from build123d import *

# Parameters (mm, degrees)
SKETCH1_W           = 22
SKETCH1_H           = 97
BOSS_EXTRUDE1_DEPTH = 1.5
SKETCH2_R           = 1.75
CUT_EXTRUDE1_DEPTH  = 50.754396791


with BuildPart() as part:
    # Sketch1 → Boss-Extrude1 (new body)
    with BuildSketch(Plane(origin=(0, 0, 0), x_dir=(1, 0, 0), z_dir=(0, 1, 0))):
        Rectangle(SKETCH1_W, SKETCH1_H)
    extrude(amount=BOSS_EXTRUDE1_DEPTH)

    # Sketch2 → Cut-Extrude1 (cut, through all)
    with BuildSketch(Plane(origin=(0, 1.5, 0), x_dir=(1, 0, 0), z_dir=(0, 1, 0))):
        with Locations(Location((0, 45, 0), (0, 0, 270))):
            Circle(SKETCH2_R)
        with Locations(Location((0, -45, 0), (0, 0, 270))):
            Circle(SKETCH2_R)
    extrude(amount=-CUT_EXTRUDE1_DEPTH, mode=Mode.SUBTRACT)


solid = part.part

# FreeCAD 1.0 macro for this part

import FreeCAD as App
import Part
import Sketcher
from FreeCAD import Vector

doc = App.newDocument("Part")
body = doc.addObject("PartDesign::Body", "Body")

sketch1 = doc.addObject("Sketcher::SketchObject", "Sketch")
body.addObject(sketch1)
sketch1.AttachmentSupport = (doc.XZ_Plane, [""])
sketch1.MapMode = "FlatFace"
sketch1.addGeometry(Part.LineSegment(Vector(-11, -48, 0), Vector(-11, 48, 0)), False)
sketch1.addGeometry(Part.LineSegment(Vector(-11, 48, 0), Vector(11, 48, 0)), False)
sketch1.addGeometry(Part.LineSegment(Vector(11, 48, 0), Vector(11, -48, 0)), False)
sketch1.addGeometry(Part.LineSegment(Vector(11, -48, 0), Vector(-11, -48, 0)), False)
sketch1.addConstraint(Sketcher.Constraint("Coincident", 0, 2, 1, 1))
sketch1.addConstraint(Sketcher.Constraint("Coincident", 1, 2, 2, 1))
sketch1.addConstraint(Sketcher.Constraint("Coincident", 2, 2, 3, 1))
sketch1.addConstraint(Sketcher.Constraint("Coincident", 3, 2, 0, 1))
sketch1.addConstraint(Sketcher.Constraint("Vertical", 0))
sketch1.addConstraint(Sketcher.Constraint("Horizontal", 1))
sketch1.addConstraint(Sketcher.Constraint("Vertical", 2))
sketch1.addConstraint(Sketcher.Constraint("Horizontal", 3))
sketch1.addConstraint(Sketcher.Constraint("Symmetric", 0, 2, 2, 2, -1, 1))
sketch1.addConstraint(Sketcher.Constraint("DistanceX", 1, 1, 1, 2, 22.0))
sketch1.addConstraint(Sketcher.Constraint("DistanceY", 0, 1, 0, 2, 97.0))
pad1 = doc.addObject("PartDesign::Pad", "Pad")
body.addObject(pad1)
pad1.Profile = sketch1
pad1.Length = 1.5
pad1.Reversed = True

sketch2 = doc.addObject("Sketcher::SketchObject", "Sketch001")
body.addObject(sketch2)
sketch2.AttachmentSupport = (doc.XZ_Plane, [""])
sketch2.MapMode = "FlatFace"
sketch2.AttachmentOffset = App.Placement(Vector(0, 0, -1.5), App.Rotation())
sketch2.addGeometry(Part.Circle(Vector(0, -45, 0), Vector(0, 0, 1), 1.8), False)
sketch2.addGeometry(Part.Circle(Vector(0, 45, 0), Vector(0, 0, 1), 1.8), False)
sketch2.addConstraint(Sketcher.Constraint("Equal", 0, 1))
sketch2.addConstraint(Sketcher.Constraint("Symmetric", 0, 3, 1, 3, -1, 1))
sketch2.addConstraint(Sketcher.Constraint("PointOnObject", 0, 3, -2))
sketch2.addConstraint(Sketcher.Constraint("Diameter", 0, 3.5))
sketch2.addConstraint(Sketcher.Constraint("DistanceY", 0, 3, -1, 1, 45.0))
pocket1 = doc.addObject("PartDesign::Pocket", "Pocket")
body.addObject(pocket1)
pocket1.Profile = sketch2
pocket1.Type = "ThroughAll"
pocket1.Reversed = True

doc.recompute()
